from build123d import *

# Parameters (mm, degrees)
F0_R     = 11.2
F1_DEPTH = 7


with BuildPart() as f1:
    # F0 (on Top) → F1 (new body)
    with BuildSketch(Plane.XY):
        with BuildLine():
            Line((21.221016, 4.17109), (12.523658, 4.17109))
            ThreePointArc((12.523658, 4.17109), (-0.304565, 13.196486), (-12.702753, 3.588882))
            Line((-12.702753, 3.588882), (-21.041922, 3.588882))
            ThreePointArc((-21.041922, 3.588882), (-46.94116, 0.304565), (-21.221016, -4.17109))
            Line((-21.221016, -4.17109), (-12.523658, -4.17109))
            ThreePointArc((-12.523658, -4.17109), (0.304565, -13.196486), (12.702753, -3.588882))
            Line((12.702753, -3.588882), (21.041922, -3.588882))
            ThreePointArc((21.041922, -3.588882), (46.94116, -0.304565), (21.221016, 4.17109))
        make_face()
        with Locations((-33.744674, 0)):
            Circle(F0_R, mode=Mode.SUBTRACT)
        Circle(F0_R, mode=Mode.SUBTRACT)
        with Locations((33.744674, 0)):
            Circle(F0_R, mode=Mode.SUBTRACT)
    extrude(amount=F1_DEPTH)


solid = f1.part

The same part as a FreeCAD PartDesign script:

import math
import FreeCAD as App
import Part
import Sketcher

doc = App.newDocument("Part")
params = doc.addObject("Spreadsheet::Sheet", "Params")
for row, (alias, value) in enumerate([
    ("sketch1_diameter", "22.4 mm"),
    ("sketch1_radius", "13.2 mm"),
    ("pad1_length", "7 mm"),
], start=1):
    params.set(f"A{row}", alias)
    params.set(f"B{row}", "=" + value)
    params.setAlias(f"B{row}", alias)

body = doc.addObject("PartDesign::Body", "Body")

sketch1 = body.newObject("Sketcher::SketchObject", "Sketch")
sketch1.AttachmentSupport = (doc.getObject("XY_Plane"), [""])
sketch1.MapMode = "FlatFace"
sketch1.addGeometry([
    Part.LineSegment(App.Vector(21.221016, 4.17109, 0), App.Vector(12.523658, 4.17109, 0)),
    Part.ArcOfCircle(Part.Circle(App.Vector(0, 0, 0), App.Vector(0, 0, 1), 13.2), math.radians(18.42069), math.radians(164.223534)),
    Part.LineSegment(App.Vector(-12.702753, 3.588882, 0), App.Vector(-21.041922, 3.588882, 0)),
    Part.ArcOfCircle(Part.Circle(App.Vector(-33.744674, -0.000001, 0), App.Vector(0, 0, 1), 13.2), math.radians(15.776472), math.radians(341.579315)),
    Part.LineSegment(App.Vector(-21.221016, -4.17109, 0), App.Vector(-12.523658, -4.17109, 0)),
    Part.ArcOfCircle(Part.Circle(App.Vector(0, 0, 0), App.Vector(0, 0, 1), 13.2), math.radians(-161.57931), math.radians(-15.776466)),
    Part.LineSegment(App.Vector(12.702753, -3.588882, 0), App.Vector(21.041922, -3.588882, 0)),
    Part.ArcOfCircle(Part.Circle(App.Vector(33.744674, 0.000001, 0), App.Vector(0, 0, 1), 13.2), math.radians(-164.223528), math.radians(161.579315)),
    Part.Circle(App.Vector(-33.744674, 0, 0), App.Vector(0, 0, 1), 11.2),
    Part.Circle(App.Vector(0, 0, 0), App.Vector(0, 0, 1), 11.2),
    Part.Circle(App.Vector(33.744674, 0, 0), App.Vector(0, 0, 1), 11.2),
], False)
sketch1.addConstraint([
    Sketcher.Constraint("Coincident", 0, 2, 1, 1),
    Sketcher.Constraint("Coincident", 1, 2, 2, 1),
    Sketcher.Constraint("Coincident", 2, 2, 3, 1),
    Sketcher.Constraint("Coincident", 3, 2, 4, 1),
    Sketcher.Constraint("Coincident", 4, 2, 5, 1),
    Sketcher.Constraint("Coincident", 5, 2, 6, 1),
    Sketcher.Constraint("Coincident", 6, 2, 7, 1),
    Sketcher.Constraint("Coincident", 7, 2, 0, 1),
    Sketcher.Constraint("Horizontal", 0),
    Sketcher.Constraint("Horizontal", 2),
    Sketcher.Constraint("Horizontal", 4),
    Sketcher.Constraint("Horizontal", 6),
    Sketcher.Constraint("Coincident", 1, 3, -1, 1),
    Sketcher.Constraint("Coincident", 5, 3, -1, 1),
    Sketcher.Constraint("Coincident", 9, 3, -1, 1),
    Sketcher.Constraint("Coincident", 8, 3, 3, 3),
    Sketcher.Constraint("Coincident", 10, 3, 7, 3),
    Sketcher.Constraint("Equal", 1, 3),
    Sketcher.Constraint("Equal", 3, 5),
    Sketcher.Constraint("Equal", 5, 7),
    Sketcher.Constraint("Equal", 8, 9),
    Sketcher.Constraint("Equal", 9, 10),
    Sketcher.Constraint("Symmetric", 3, 3, 7, 3, -1, 1),
    Sketcher.Constraint("PointOnObject", 3, 3, -1),
    Sketcher.Constraint("Equal", 0, 4),
    Sketcher.Constraint("Equal", 2, 6),
    Sketcher.Constraint("Diameter", 8, 22.4),
    Sketcher.Constraint("Radius", 1, 13.2),
    Sketcher.Constraint("DistanceX", 2, 2, 2, 1, 8.339169),
    Sketcher.Constraint("DistanceX", 0, 2, 0, 1, 8.697358),
    Sketcher.Constraint("DistanceY", -1, 1, 0, 2, 4.17109),
])
sketch1.setExpression("Constraints[26]", "Params.sketch1_diameter")
sketch1.setExpression("Constraints[27]", "Params.sketch1_radius")
pad1 = body.newObject("PartDesign::Pad", "Pad")
pad1.Profile = sketch1
pad1.setExpression("Length", "Params.pad1_length")

doc.recompute()
